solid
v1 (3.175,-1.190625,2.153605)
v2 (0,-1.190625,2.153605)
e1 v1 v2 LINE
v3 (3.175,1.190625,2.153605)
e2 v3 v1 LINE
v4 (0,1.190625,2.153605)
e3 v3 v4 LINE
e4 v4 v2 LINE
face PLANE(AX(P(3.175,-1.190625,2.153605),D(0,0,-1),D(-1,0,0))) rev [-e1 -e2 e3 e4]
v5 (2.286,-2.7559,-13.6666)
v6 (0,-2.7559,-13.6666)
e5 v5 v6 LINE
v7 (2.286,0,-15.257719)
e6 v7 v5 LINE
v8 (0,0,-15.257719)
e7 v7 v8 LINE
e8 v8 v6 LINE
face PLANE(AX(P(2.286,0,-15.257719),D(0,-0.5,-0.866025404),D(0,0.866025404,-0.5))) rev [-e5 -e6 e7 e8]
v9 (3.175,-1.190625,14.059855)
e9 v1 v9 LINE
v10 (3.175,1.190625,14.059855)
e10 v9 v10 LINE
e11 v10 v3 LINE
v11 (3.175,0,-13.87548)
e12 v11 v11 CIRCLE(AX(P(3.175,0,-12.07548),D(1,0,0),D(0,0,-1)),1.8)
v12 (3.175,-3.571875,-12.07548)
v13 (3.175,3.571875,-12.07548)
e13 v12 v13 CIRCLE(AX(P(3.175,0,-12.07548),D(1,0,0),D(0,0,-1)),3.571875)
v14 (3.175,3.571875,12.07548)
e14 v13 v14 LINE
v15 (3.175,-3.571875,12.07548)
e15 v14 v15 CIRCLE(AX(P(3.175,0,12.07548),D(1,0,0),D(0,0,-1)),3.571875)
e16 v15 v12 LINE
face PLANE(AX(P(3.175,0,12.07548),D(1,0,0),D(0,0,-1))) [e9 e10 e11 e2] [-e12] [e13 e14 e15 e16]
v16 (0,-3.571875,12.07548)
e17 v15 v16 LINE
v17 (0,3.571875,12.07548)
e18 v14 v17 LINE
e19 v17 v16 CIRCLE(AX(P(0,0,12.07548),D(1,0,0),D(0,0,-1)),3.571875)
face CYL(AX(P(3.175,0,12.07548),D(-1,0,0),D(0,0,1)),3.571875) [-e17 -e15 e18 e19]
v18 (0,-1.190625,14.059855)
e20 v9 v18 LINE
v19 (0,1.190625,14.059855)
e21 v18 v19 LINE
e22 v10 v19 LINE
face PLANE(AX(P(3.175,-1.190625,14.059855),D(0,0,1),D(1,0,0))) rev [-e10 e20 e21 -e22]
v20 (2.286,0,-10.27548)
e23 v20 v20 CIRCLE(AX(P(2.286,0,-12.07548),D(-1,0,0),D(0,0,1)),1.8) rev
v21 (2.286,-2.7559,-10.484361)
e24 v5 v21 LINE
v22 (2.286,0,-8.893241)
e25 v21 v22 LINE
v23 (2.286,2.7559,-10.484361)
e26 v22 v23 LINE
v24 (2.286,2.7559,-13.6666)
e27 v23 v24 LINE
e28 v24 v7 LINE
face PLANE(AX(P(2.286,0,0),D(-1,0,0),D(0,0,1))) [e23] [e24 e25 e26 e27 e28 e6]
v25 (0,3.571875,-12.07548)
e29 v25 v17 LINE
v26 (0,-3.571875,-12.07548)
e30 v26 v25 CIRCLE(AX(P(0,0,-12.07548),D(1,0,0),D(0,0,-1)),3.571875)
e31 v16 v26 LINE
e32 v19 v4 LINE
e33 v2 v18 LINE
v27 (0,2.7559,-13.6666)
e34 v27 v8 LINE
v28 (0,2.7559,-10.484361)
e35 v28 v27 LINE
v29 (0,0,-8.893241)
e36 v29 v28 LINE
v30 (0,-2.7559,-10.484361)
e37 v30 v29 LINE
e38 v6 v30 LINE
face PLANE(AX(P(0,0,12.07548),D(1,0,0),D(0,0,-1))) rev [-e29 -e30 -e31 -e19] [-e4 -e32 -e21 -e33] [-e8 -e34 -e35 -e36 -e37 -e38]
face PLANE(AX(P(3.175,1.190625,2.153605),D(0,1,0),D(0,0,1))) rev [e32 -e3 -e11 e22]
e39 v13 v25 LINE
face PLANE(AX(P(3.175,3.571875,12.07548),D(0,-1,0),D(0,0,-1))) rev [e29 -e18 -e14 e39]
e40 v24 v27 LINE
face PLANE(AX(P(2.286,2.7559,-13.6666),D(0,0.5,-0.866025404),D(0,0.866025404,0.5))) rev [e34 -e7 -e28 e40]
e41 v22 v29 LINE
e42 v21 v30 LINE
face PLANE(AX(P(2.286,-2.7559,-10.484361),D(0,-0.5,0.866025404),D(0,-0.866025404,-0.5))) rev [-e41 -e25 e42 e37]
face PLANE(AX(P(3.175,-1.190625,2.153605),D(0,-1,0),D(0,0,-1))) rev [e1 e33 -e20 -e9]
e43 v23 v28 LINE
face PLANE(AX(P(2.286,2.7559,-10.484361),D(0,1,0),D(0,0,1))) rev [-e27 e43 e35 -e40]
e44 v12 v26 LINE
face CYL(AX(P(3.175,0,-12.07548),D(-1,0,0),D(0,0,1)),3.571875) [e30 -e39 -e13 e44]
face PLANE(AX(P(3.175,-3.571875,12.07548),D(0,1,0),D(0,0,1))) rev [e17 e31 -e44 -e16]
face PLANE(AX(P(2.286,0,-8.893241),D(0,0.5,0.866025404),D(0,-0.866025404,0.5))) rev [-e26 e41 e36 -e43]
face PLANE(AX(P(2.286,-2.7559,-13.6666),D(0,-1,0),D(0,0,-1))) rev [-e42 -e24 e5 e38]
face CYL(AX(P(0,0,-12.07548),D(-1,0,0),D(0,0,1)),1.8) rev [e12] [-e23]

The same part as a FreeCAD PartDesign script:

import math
import FreeCAD as App
import Part
import Sketcher
from FreeCAD import Vector
Q = App.Units.Quantity


def add_polygon(sketch, points):
    """Adds a closed chain of lines whose ends are joined by coincident constraints."""
    first, n = sketch.GeometryCount, len(points)
    for a, b in zip(points, points[1:] + points[:1]):
        sketch.addGeometry(Part.LineSegment(App.Vector(*a, 0), App.Vector(*b, 0)), False)
    for i in range(n):
        sketch.addConstraint(Sketcher.Constraint("Coincident", first + i, 2, first + (i + 1) % n, 1))

doc = App.newDocument("Part")
body = doc.addObject("PartDesign::Body", "Body")

# Sketch on YZ plane
sketch1 = body.newObject("Sketcher::SketchObject", "Sketch")
sketch1.AttachmentSupport = (doc.getObject("YZ_Plane"), [""])
sketch1.MapMode = "FlatFace"
sketch1.addGeometry([
    Part.LineSegment(Vector(3.6, -12.1, 0), Vector(3.6, 12.1, 0)),
    Part.ArcOfCircle(Part.Circle(Vector(0, 12.1, 0), Vector(0, 0, 1), 3.6), math.radians(0), math.radians(180)),
    Part.LineSegment(Vector(-3.6, 12.1, 0), Vector(-3.6, -12.1, 0)),
    Part.ArcOfCircle(Part.Circle(Vector(0, -12.1, 0), Vector(0, 0, 1), 3.6), math.radians(180), math.radians(360)),
], False)
sketch1.addConstraint([
    Sketcher.Constraint("Tangent", 0, 2, 1, 1),
    Sketcher.Constraint("Tangent", 1, 2, 2, 1),
    Sketcher.Constraint("Tangent", 2, 2, 3, 1),
    Sketcher.Constraint("Tangent", 3, 2, 0, 1),
    Sketcher.Constraint("Vertical", 0),
    Sketcher.Constraint("Vertical", 2),
    Sketcher.Constraint("Symmetric", 1, 3, 3, 3, -1, 1),
    Sketcher.Constraint("Radius", 1, Q("0.140625 in")),
    Sketcher.Constraint("DistanceY", 0, 1, 0, 2, 24.15096),
])
pad1 = body.newObject("PartDesign::Pad", "Pad")
pad1.Profile = sketch1
pad1.Length = Q("0.125 in")

# Sketch on YZ plane
sketch2 = body.newObject("Sketcher::SketchObject", "Sketch001")
sketch2.AttachmentSupport = (doc.getObject("YZ_Plane"), [""])
sketch2.MapMode = "FlatFace"
sketch2.addGeometry(Part.Circle(Vector(0, -12.1, 0), Vector(0, 0, 1), 1.8), False)
sketch2.addConstraint([
    Sketcher.Constraint("PointOnObject", 0, 3, -2),
    Sketcher.Constraint("Diameter", 0, 3.6),
    Sketcher.Constraint("DistanceY", 0, 3, -1, 1, 12.07548),
])
doc.recompute()
hole = body.newObject("PartDesign::Hole", "Hole")
hole.Profile = sketch2
hole.ThreadType = "None"
hole.Diameter = 3.6
hole.DepthType = "Dimension"
hole.Depth = Q("0.3 in")
hole.DrillPoint = "Angled"
hole.DrillPointAngle = 118
hole.Reversed = True

# Sketch on YZ plane
sketch3 = body.newObject("Sketcher::SketchObject", "Sketch002")
sketch3.AttachmentSupport = (doc.getObject("YZ_Plane"), [""])
sketch3.MapMode = "FlatFace"
add_polygon(sketch3, [(1.2, 2.2), (-1.2, 2.2), (-1.2, 14.1), (1.2, 14.1)])  # lines 0-3
sketch3.addConstraint([
    Sketcher.Constraint("Horizontal", 0),
    Sketcher.Constraint("Vertical", 1),
    Sketcher.Constraint("Horizontal", 2),
    Sketcher.Constraint("Vertical", 3),
    Sketcher.Constraint("DistanceX", 0, 2, 0, 1, Q("0.09375 in")),
    Sketcher.Constraint("DistanceY", 1, 1, 1, 2, Q("0.46875 in")),
    Sketcher.Constraint("DistanceX", 0, 2, -1, 1, Q("0.046875 in")),
    Sketcher.Constraint("DistanceY", -1, 1, 0, 2, 2.153605),
])
pocket1 = body.newObject("PartDesign::Pocket", "Pocket")
pocket1.Profile = sketch3
pocket1.Type = "ThroughAll"
pocket1.Reversed = True

# Sketch on YZ plane
sketch4 = body.newObject("Sketcher::SketchObject", "Sketch003")
sketch4.AttachmentSupport = (doc.getObject("YZ_Plane"), [""])
sketch4.MapMode = "FlatFace"
add_polygon(sketch4, [(-2.8, -10.5), (0, -8.9), (2.8, -10.5), (2.8, -13.7), (0, -15.3), (-2.8, -13.7)])  # lines 0-5
sketch4.addConstraint([
    Sketcher.Constraint("Vertical", 2),
    Sketcher.Constraint("Vertical", 5),
    Sketcher.Constraint("Symmetric", 2, 2, 4, 2, -2),
    Sketcher.Constraint("PointOnObject", 0, 2, -2),
    Sketcher.Constraint("PointOnObject", 3, 2, -2),
    Sketcher.Constraint("Parallel", 0, 3),
    Sketcher.Constraint("Parallel", 1, 4),
    Sketcher.Constraint("Angle", 0, Q("30 deg")),
    Sketcher.Constraint("DistanceX", 4, 2, 2, 2, Q("0.217 in")),
    Sketcher.Constraint("DistanceY", 2, 2, 2, 1, 3.182239),
    Sketcher.Constraint("DistanceY", 2, 2, -1, 1, 13.6666),
])
pocket2 = body.newObject("PartDesign::Pocket", "Pocket001")
pocket2.Profile = sketch4
pocket2.Length = Q("0.09 in")
pocket2.Reversed = True

doc.recompute()
